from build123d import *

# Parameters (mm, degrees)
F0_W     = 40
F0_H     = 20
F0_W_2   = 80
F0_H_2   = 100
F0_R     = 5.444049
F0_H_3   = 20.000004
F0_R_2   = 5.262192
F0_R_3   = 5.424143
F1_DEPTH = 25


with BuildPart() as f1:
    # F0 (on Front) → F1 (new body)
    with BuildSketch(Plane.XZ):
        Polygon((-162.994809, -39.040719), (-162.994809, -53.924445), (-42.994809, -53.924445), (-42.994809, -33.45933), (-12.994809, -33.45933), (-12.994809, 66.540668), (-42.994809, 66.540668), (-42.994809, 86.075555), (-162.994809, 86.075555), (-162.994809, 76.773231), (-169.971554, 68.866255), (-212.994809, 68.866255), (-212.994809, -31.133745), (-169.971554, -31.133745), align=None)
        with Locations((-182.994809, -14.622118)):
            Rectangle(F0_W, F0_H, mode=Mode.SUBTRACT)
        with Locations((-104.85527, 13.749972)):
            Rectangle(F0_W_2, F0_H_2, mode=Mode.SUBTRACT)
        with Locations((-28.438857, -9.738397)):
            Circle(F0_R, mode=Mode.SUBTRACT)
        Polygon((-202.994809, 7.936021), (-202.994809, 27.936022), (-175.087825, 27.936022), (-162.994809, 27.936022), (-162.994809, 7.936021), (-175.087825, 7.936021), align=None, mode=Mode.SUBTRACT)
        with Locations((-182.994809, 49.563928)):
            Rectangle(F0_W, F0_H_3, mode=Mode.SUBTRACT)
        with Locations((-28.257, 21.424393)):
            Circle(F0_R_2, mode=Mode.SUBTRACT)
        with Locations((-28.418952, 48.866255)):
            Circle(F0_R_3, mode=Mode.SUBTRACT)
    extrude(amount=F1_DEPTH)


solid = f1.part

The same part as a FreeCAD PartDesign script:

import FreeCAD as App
import Part
import Sketcher

V = App.Vector

doc = App.newDocument("Part")
params = doc.addObject("Spreadsheet::Sheet", "Params")
for row, (alias, value) in enumerate([
    ("sketch1_width", "120 mm"),
    ("sketch1_width2", "30 mm"),
    ("sketch1_width3", "40 mm"),
    ("sketch1_width4", "80 mm"),
    ("sketch1_height", "99.999998 mm"),
    ("pad1_length", "25 mm"),
], start=1):
    params.set(f"A{row}", alias)
    params.set(f"B{row}", "=" + value)
    params.setAlias(f"B{row}", alias)

body = doc.addObject("PartDesign::Body", "Body")

sketch1 = doc.addObject("Sketcher::SketchObject", "Sketch")
body.addObject(sketch1)
sketch1.AttachmentSupport = (doc.XZ_Plane, [""])
sketch1.MapMode = "FlatFace"
sketch1.addGeometry([
    Part.LineSegment(V(-163, -39, 0), V(-163, -54, 0)),
    Part.LineSegment(V(-163, -54, 0), V(-43, -54, 0)),
    Part.LineSegment(V(-43, -54, 0), V(-43, -33, 0)),
    Part.LineSegment(V(-43, -33, 0), V(-13, -33, 0)),
    Part.LineSegment(V(-13, -33, 0), V(-13, 67, 0)),
    Part.LineSegment(V(-13, 67, 0), V(-43, 67, 0)),
    Part.LineSegment(V(-43, 67, 0), V(-43, 86, 0)),
    Part.LineSegment(V(-43, 86, 0), V(-163, 86, 0)),
    Part.LineSegment(V(-163, 86, 0), V(-163, 77, 0)),
    Part.LineSegment(V(-163, 77, 0), V(-170, 69, 0)),
    Part.LineSegment(V(-170, 69, 0), V(-213, 69, 0)),
    Part.LineSegment(V(-213, 69, 0), V(-213, -31, 0)),
    Part.LineSegment(V(-213, -31, 0), V(-170, -31, 0)),
    Part.LineSegment(V(-170, -31, 0), V(-163, -39, 0)),
    Part.LineSegment(V(-163, -25, 0), V(-203, -25, 0)),
    Part.LineSegment(V(-203, -25, 0), V(-203, -5, 0)),
    Part.LineSegment(V(-203, -5, 0), V(-163, -5, 0)),
    Part.LineSegment(V(-163, -5, 0), V(-163, -25, 0)),
    Part.Circle(V(-28, -10, 0), V(0, 0, 1), 5),
    Part.LineSegment(V(-163, 8, 0), V(-203, 8, 0)),
    Part.LineSegment(V(-203, 8, 0), V(-203, 28, 0)),
    Part.LineSegment(V(-203, 28, 0), V(-163, 28, 0)),
    Part.LineSegment(V(-163, 28, 0), V(-163, 8, 0)),
    Part.LineSegment(V(-163, 40, 0), V(-203, 40, 0)),
    Part.LineSegment(V(-203, 40, 0), V(-203, 60, 0)),
    Part.LineSegment(V(-203, 60, 0), V(-163, 60, 0)),
    Part.LineSegment(V(-163, 60, 0), V(-163, 40, 0)),
    Part.LineSegment(V(-65, -36, 0), V(-145, -36, 0)),
    Part.LineSegment(V(-145, -36, 0), V(-145, 64, 0)),
    Part.LineSegment(V(-145, 64, 0), V(-65, 64, 0)),
    Part.LineSegment(V(-65, 64, 0), V(-65, -36, 0)),
    Part.Circle(V(-28, 21, 0), V(0, 0, 1), 5),
    Part.Circle(V(-28, 49, 0), V(0, 0, 1), 5),
], False)
sketch1.addConstraint([
    Sketcher.Constraint("Coincident", 0, 2, 1, 1),
    Sketcher.Constraint("Coincident", 1, 2, 2, 1),
    Sketcher.Constraint("Coincident", 2, 2, 3, 1),
    Sketcher.Constraint("Coincident", 3, 2, 4, 1),
    Sketcher.Constraint("Coincident", 4, 2, 5, 1),
    Sketcher.Constraint("Coincident", 5, 2, 6, 1),
    Sketcher.Constraint("Coincident", 6, 2, 7, 1),
    Sketcher.Constraint("Coincident", 7, 2, 8, 1),
    Sketcher.Constraint("Coincident", 8, 2, 9, 1),
    Sketcher.Constraint("Coincident", 9, 2, 10, 1),
    Sketcher.Constraint("Coincident", 10, 2, 11, 1),
    Sketcher.Constraint("Coincident", 11, 2, 12, 1),
    Sketcher.Constraint("Coincident", 12, 2, 13, 1),
    Sketcher.Constraint("Coincident", 13, 2, 0, 1),
    Sketcher.Constraint("Coincident", 14, 2, 15, 1),
    Sketcher.Constraint("Coincident", 15, 2, 16, 1),
    Sketcher.Constraint("Coincident", 16, 2, 17, 1),
    Sketcher.Constraint("Coincident", 17, 2, 14, 1),
    Sketcher.Constraint("Coincident", 19, 2, 20, 1),
    Sketcher.Constraint("Coincident", 20, 2, 21, 1),
    Sketcher.Constraint("Coincident", 21, 2, 22, 1),
    Sketcher.Constraint("Coincident", 22, 2, 19, 1),
    Sketcher.Constraint("Coincident", 23, 2, 24, 1),
    Sketcher.Constraint("Coincident", 24, 2, 25, 1),
    Sketcher.Constraint("Coincident", 25, 2, 26, 1),
    Sketcher.Constraint("Coincident", 26, 2, 23, 1),
    Sketcher.Constraint("Coincident", 27, 2, 28, 1),
    Sketcher.Constraint("Coincident", 28, 2, 29, 1),
    Sketcher.Constraint("Coincident", 29, 2, 30, 1),
    Sketcher.Constraint("Coincident", 30, 2, 27, 1),
    Sketcher.Constraint("Vertical", 0),
    Sketcher.Constraint("Horizontal", 1),
    Sketcher.Constraint("Vertical", 2),
    Sketcher.Constraint("Horizontal", 3),
    Sketcher.Constraint("Vertical", 4),
    Sketcher.Constraint("Horizontal", 5),
    Sketcher.Constraint("Vertical", 6),
    Sketcher.Constraint("Horizontal", 7),
    Sketcher.Constraint("Vertical", 8),
    Sketcher.Constraint("Horizontal", 10),
    Sketcher.Constraint("Vertical", 11),
    Sketcher.Constraint("Horizontal", 12),
    Sketcher.Constraint("Horizontal", 14),
    Sketcher.Constraint("Vertical", 15),
    Sketcher.Constraint("Horizontal", 16),
    Sketcher.Constraint("Vertical", 17),
    Sketcher.Constraint("Horizontal", 19),
    Sketcher.Constraint("Vertical", 20),
    Sketcher.Constraint("Horizontal", 21),
    Sketcher.Constraint("Vertical", 22),
    Sketcher.Constraint("Horizontal", 23),
    Sketcher.Constraint("Vertical", 24),
    Sketcher.Constraint("Horizontal", 25),
    Sketcher.Constraint("Vertical", 26),
    Sketcher.Constraint("Horizontal", 27),
    Sketcher.Constraint("Vertical", 28),
    Sketcher.Constraint("Horizontal", 29),
    Sketcher.Constraint("Vertical", 30),
    Sketcher.Constraint("Vertical", 2, 2, 5, 2),
    Sketcher.Constraint("Vertical", 0, 2, 7, 2),
    Sketcher.Constraint("Vertical", 9, 2, 12, 2),
    Sketcher.Constraint("Vertical", 13, 2, 16, 2),
    Sketcher.Constraint("Vertical", 15, 2, 19, 2),
    Sketcher.Constraint("Vertical", 17, 2, 21, 2),
    Sketcher.Constraint("Vertical", 20, 2, 23, 2),
    Sketcher.Constraint("Vertical", 22, 2, 25, 2),
    Sketcher.Constraint("Equal", 4, 11),
    Sketcher.Constraint("Equal", 17, 20),
    Sketcher.Constraint("Equal", 11, 28),
    Sketcher.Constraint("Equal", 9, 13),
    Sketcher.Constraint("DistanceX", 1, 1, 1, 2, 120.0),
    Sketcher.Constraint("DistanceX", 3, 1, 3, 2, 30.0),
    Sketcher.Constraint("DistanceX", 14, 2, 14, 1, 40.0),
    Sketcher.Constraint("DistanceX", 27, 2, 27, 1, 80.0),
    Sketcher.Constraint("DistanceY", 4, 1, 4, 2, 99.999998),
    Sketcher.Constraint("DistanceY", 15, 1, 15, 2, 20.0),
    Sketcher.Constraint("DistanceY", 0, 2, 7, 2, 140.0),
    Sketcher.Constraint("DistanceX", 10, 2, 8, 2, 50.0),
    Sketcher.Constraint("Diameter", 18, 10.888098),
    Sketcher.Constraint("Diameter", 31, 10.524384),
    Sketcher.Constraint("Diameter", 32, 10.848286),
    Sketcher.Constraint("DistanceX", 31, 3, -1, 1, 28.257),
    Sketcher.Constraint("DistanceY", 0, 2, 32, 3, 102.7907),
    Sketcher.Constraint("DistanceY", 9, 2, 7, 2, 17.2093),
    Sketcher.Constraint("DistanceY", 13, 2, 14, 2, 14.418601),
    Sketcher.Constraint("DistanceY", 24, 2, 8, 2, 17.209301),
    Sketcher.Constraint("DistanceX", 10, 2, 10, 1, 43.023255),
    Sketcher.Constraint("DistanceY", 0, 2, 0, 1, 14.883726),
    Sketcher.Constraint("DistanceY", 2, 1, 2, 2, 20.465115),
    Sketcher.Constraint("DistanceY", 24, 1, 24, 2, 20.000004),
    Sketcher.Constraint("DistanceX", 0, 2, -1, 1, 162.994809),
    Sketcher.Constraint("DistanceY", 2, 2, -1, 1, 33.45933),
    Sketcher.Constraint("DistanceY", -1, 1, 19, 2, 7.936021),
    Sketcher.Constraint("DistanceX", 27, 2, -1, 1, 144.85527),
    Sketcher.Constraint("DistanceY", 18, 3, 31, 3, 31.16279),
    Sketcher.Constraint("DistanceX", 32, 3, 31, 3, 0.161952),
    Sketcher.Constraint("DistanceX", 0, 2, 18, 3, 134.555952),
    Sketcher.Constraint("DistanceY", 0, 2, 31, 3, 75.348838),
    Sketcher.Constraint("DistanceY", 13, 2, 27, 2, 2.790691),
])
sketch1.setExpression("Constraints[70]", "Params.sketch1_width")
sketch1.setExpression("Constraints[71]", "Params.sketch1_width2")
sketch1.setExpression("Constraints[72]", "Params.sketch1_width3")
sketch1.setExpression("Constraints[73]", "Params.sketch1_width4")
sketch1.setExpression("Constraints[74]", "Params.sketch1_height")
pad1 = doc.addObject("PartDesign::Pad", "Pad")
body.addObject(pad1)
pad1.Profile = sketch1
pad1.setExpression("Length", "Params.pad1_length")

doc.recompute()
